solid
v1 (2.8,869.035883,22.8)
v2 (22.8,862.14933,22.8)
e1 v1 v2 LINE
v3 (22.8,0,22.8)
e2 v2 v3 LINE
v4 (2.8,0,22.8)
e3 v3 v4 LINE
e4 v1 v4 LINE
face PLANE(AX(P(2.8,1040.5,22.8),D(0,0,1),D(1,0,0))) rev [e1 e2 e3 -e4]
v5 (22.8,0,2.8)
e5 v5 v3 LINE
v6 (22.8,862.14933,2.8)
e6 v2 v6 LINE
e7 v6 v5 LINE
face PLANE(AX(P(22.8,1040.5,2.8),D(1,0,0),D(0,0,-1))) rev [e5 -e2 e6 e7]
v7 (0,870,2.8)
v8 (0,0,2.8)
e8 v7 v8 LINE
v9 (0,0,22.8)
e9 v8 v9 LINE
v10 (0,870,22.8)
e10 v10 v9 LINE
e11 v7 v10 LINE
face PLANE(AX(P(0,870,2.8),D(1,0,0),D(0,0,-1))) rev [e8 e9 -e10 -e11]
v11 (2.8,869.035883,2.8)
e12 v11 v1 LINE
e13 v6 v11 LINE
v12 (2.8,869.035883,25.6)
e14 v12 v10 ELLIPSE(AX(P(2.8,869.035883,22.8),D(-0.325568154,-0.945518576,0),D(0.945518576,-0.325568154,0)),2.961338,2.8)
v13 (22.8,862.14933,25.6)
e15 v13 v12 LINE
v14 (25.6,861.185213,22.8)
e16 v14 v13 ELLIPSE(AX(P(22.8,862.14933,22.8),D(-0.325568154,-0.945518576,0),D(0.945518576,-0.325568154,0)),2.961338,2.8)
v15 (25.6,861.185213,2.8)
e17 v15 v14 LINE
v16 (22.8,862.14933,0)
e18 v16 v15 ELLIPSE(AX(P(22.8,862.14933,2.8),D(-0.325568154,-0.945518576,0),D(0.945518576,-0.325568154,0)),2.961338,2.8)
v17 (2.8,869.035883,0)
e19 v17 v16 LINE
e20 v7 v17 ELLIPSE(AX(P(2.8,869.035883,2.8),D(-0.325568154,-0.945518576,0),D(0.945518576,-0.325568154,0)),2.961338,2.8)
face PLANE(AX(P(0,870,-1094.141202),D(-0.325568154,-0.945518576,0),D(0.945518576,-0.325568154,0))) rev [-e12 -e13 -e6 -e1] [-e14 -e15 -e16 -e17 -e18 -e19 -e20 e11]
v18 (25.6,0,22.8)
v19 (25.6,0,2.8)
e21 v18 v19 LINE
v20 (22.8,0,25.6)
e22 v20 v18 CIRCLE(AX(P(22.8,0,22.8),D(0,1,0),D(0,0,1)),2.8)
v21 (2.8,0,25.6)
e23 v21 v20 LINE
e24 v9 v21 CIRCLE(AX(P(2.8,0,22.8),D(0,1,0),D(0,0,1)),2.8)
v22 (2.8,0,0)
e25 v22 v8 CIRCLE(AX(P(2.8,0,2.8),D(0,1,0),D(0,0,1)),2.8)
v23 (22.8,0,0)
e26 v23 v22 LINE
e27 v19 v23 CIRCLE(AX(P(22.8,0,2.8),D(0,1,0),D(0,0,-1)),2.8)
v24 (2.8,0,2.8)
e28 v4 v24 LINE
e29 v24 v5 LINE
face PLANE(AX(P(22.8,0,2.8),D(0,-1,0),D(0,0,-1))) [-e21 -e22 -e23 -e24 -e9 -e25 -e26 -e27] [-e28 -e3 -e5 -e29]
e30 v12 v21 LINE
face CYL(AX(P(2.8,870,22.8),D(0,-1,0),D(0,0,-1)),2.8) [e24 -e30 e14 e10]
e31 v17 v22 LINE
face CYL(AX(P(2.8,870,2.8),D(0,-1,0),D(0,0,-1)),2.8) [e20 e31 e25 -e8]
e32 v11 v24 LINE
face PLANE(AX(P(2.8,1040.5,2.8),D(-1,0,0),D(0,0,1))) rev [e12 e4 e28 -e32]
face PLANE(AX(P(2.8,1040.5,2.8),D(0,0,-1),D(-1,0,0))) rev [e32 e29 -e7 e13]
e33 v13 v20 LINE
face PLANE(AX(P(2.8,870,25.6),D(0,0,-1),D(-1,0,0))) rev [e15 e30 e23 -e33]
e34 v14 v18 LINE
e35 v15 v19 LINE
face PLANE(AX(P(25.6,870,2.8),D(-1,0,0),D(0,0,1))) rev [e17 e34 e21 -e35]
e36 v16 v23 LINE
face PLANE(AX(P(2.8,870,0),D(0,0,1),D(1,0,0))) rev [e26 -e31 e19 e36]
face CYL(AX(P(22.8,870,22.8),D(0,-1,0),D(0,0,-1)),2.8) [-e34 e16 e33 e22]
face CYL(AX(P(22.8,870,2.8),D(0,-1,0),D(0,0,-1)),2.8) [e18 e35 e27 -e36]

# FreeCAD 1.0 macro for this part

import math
import FreeCAD as App
import Part
import Sketcher
from FreeCAD import Vector
Q = App.Units.Quantity


def add_polygon(sketch, points):
    """Adds a closed chain of lines whose ends are joined by coincident constraints."""
    first, n = sketch.GeometryCount, len(points)
    for a, b in zip(points, points[1:] + points[:1]):
        sketch.addGeometry(Part.LineSegment(App.Vector(*a, 0), App.Vector(*b, 0)), False)
    for i in range(n):
        sketch.addConstraint(Sketcher.Constraint("Coincident", first + i, 2, first + (i + 1) % n, 1))

doc = App.newDocument("Part")
body = doc.addObject("PartDesign::Body", "Body")

sketch1 = body.newObject("Sketcher::SketchObject", "Sketch")
sketch1.AttachmentSupport = (doc.getObject("XZ_Plane"), [""])
sketch1.MapMode = "FlatFace"
sketch1.addGeometry([
    Part.LineSegment(Vector(22.8, 0, 0), Vector(2.8, 0, 0)),
    Part.ArcOfCircle(Part.Circle(Vector(2.8, 2.8, 0), Vector(0, 0, 1), 2.8), math.radians(-180), math.radians(-90)),
    Part.LineSegment(Vector(0, 2.8, 0), Vector(0, 22.8, 0)),
    Part.ArcOfCircle(Part.Circle(Vector(2.8, 22.8, 0), Vector(0, 0, 1), 2.8), math.radians(90), math.radians(180)),
    Part.LineSegment(Vector(2.8, 25.6, 0), Vector(22.8, 25.6, 0)),
    Part.ArcOfCircle(Part.Circle(Vector(22.8, 22.8, 0), Vector(0, 0, 1), 2.8), math.radians(0), math.radians(90)),
    Part.LineSegment(Vector(25.6, 22.8, 0), Vector(25.6, 2.8, 0)),
    Part.ArcOfCircle(Part.Circle(Vector(22.8, 2.8, 0), Vector(0, 0, 1), 2.8), math.radians(-90), math.radians(0)),
], False)
sketch1.addConstraint([
    Sketcher.Constraint("Tangent", 0, 2, 1, 2),
    Sketcher.Constraint("Tangent", 1, 1, 2, 1),
    Sketcher.Constraint("Tangent", 2, 2, 3, 2),
    Sketcher.Constraint("Tangent", 3, 1, 4, 1),
    Sketcher.Constraint("Tangent", 4, 2, 5, 2),
    Sketcher.Constraint("Tangent", 5, 1, 6, 1),
    Sketcher.Constraint("Tangent", 6, 2, 7, 2),
    Sketcher.Constraint("Tangent", 7, 1, 0, 1),
    Sketcher.Constraint("Horizontal", 0),
    Sketcher.Constraint("Vertical", 2),
    Sketcher.Constraint("Horizontal", 4),
    Sketcher.Constraint("Vertical", 6),
    Sketcher.Constraint("Equal", 1, 3),
    Sketcher.Constraint("Equal", 3, 5),
    Sketcher.Constraint("Equal", 5, 7),
    Sketcher.Constraint("PointOnObject", 0, 2, -1),
    Sketcher.Constraint("PointOnObject", 1, 1, -2),
    Sketcher.Constraint("Equal", 4, 2),
    Sketcher.Constraint("Radius", 1, 2.8),
    Sketcher.Constraint("DistanceX", 0, 2, 0, 1, 20.0),
])
pad1 = body.newObject("PartDesign::Pad", "Pad")
pad1.Profile = sketch1
pad1.Length = 870
pad1.Reversed = True

sketch2 = body.newObject("Sketcher::SketchObject", "Sketch001")
sketch2.AttachmentSupport = (doc.getObject("XZ_Plane"), [""])
sketch2.MapMode = "FlatFace"
add_polygon(sketch2, [(22.8, 2.8), (22.8, 22.8), (2.8, 22.8), (2.8, 2.8)])
sketch2.addConstraint([
    Sketcher.Constraint("Vertical", 0),
    Sketcher.Constraint("Horizontal", 1),
    Sketcher.Constraint("Vertical", 2),
    Sketcher.Constraint("Horizontal", 3),
    Sketcher.Constraint("Equal", 3, 0),
    Sketcher.Constraint("DistanceX", 1, 2, 1, 1, 20.0),
    Sketcher.Constraint("DistanceX", -1, 1, 0, 2, 22.8),
    Sketcher.Constraint("DistanceY", -1, 1, 0, 2, 22.8),
])
pocket1 = body.newObject("PartDesign::Pocket", "Pocket")
pocket1.Profile = sketch2
pocket1.Length = 1040.5

sketch3 = body.newObject("Sketcher::SketchObject", "Sketch002")
sketch3.AttachmentSupport = (doc.getObject("XY_Plane"), [""])
sketch3.MapMode = "FlatFace"
sketch3.AttachmentOffset = App.Placement(Vector(0, 0, 22.8), App.Rotation())
add_polygon(sketch3, [(0, 870), (-1655.3696, 1439.989464), (-515.390673, 4750.728664), (2820.948528, 3601.93495), (1680.9696, 291.195749), (25.6, 861.185213)])
sketch3.addConstraint([
    Sketcher.Constraint("PointOnObject", 5, 2, -2),
    Sketcher.Constraint("Perpendicular", 0, 1),
    Sketcher.Constraint("Perpendicular", 1, 2),
    Sketcher.Constraint("Perpendicular", 2, 3),
    Sketcher.Constraint("Perpendicular", 3, 4),
    Sketcher.Constraint("Parallel", 4, 5),
    Sketcher.Constraint("Equal", 0, 4),
    Sketcher.Constraint("Angle", 0, Q("161 deg")),
    Sketcher.Constraint("DistanceY", -1, 1, 5, 2, 870.0),
    Sketcher.Constraint("DistanceX", -1, 1, 4, 2, 25.6),
    Sketcher.Constraint("DistanceX", 0, 2, -1, 1, 1655.3696),
    Sketcher.Constraint("DistanceY", 0, 2, 1, 2, 3310.739201),
])
pocket2 = body.newObject("PartDesign::Pocket", "Pocket001")
pocket2.Profile = sketch3
pocket2.Type = "ThroughAll"
pocket2.Midplane = True

doc.recompute()
